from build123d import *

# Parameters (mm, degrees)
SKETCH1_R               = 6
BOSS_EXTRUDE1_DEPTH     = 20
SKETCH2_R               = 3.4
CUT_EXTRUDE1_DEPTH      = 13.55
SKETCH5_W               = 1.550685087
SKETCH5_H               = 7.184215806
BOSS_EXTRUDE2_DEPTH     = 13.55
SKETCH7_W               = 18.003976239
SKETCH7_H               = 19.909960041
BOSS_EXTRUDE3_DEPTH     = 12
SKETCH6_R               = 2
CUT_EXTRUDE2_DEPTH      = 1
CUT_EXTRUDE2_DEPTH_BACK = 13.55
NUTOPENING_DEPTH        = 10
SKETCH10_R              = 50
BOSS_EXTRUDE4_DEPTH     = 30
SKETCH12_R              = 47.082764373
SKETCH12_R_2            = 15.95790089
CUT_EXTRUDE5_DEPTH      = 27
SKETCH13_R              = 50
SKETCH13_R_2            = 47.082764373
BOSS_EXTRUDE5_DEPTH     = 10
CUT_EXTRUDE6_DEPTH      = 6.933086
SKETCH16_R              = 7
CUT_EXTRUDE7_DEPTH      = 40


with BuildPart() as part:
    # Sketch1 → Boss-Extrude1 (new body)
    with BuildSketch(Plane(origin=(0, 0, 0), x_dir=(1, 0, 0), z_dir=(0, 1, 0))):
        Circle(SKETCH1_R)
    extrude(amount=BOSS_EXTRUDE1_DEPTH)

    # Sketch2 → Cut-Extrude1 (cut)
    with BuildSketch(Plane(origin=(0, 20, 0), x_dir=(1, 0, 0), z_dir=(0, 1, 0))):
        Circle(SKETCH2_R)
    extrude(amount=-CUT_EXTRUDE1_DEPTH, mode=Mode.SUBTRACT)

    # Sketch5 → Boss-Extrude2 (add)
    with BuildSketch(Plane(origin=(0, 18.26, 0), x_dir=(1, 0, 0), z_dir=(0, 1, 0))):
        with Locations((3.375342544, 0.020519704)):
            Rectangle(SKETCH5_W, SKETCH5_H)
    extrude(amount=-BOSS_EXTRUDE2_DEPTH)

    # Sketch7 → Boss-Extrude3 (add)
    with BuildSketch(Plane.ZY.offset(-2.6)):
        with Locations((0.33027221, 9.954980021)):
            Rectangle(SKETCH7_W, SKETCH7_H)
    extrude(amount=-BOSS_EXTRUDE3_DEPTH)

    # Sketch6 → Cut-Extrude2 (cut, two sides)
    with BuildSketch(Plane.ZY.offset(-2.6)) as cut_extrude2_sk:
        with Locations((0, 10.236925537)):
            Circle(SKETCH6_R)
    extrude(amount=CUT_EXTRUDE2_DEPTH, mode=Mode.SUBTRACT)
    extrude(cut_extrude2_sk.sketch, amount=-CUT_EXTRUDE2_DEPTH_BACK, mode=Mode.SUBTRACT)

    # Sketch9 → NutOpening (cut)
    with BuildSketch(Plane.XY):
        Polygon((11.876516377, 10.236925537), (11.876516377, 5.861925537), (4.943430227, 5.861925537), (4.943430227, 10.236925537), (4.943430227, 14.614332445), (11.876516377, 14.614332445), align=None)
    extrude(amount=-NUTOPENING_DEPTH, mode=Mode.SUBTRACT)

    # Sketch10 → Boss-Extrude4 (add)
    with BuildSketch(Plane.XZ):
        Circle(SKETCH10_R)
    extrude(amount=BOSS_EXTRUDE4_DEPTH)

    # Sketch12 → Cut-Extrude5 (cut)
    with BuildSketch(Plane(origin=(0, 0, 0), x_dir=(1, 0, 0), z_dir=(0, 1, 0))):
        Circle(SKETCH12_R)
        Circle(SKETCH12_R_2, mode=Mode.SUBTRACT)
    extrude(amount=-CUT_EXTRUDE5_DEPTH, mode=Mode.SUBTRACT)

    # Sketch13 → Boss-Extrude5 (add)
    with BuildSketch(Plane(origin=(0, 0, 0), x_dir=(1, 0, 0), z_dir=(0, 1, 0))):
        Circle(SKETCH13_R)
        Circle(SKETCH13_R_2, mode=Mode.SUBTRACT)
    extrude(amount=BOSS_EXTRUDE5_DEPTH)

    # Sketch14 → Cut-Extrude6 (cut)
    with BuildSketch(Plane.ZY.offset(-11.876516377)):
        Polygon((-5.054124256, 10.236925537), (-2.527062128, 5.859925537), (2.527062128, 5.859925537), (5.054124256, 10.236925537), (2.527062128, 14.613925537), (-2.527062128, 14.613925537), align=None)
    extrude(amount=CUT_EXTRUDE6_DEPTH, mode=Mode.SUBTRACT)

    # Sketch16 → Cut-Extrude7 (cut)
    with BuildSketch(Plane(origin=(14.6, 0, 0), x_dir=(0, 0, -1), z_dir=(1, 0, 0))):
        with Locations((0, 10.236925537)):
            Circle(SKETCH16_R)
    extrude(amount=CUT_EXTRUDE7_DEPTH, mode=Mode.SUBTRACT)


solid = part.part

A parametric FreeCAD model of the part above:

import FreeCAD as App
import Part
import Sketcher

V = App.Vector
Q = App.Units.Quantity

doc = App.newDocument("Part")
body = doc.addObject("PartDesign::Body", "Body")

# Sketch on XZ plane
sketch1 = body.newObject("Sketcher::SketchObject", "Sketch")
sketch1.AttachmentSupport = (doc.getObject("XZ_Plane"), [""])
sketch1.MapMode = "FlatFace"
sketch1.addGeometry(Part.Circle(V(0, 0, 0), V(0, 0, 1), 6), False)
sketch1.addConstraint([
    Sketcher.Constraint("Coincident", 0, 3, -1, 1),
    Sketcher.Constraint("Diameter", 0, 12.0),
])
pad1 = body.newObject("PartDesign::Pad", "Pad")
pad1.Profile = sketch1
pad1.Length = 20
pad1.Reversed = True

# Sketch on XZ plane
sketch2 = body.newObject("Sketcher::SketchObject", "Sketch001")
sketch2.AttachmentSupport = (doc.getObject("XZ_Plane"), [""])
sketch2.MapMode = "FlatFace"
sketch2.AttachmentOffset = App.Placement(V(0, 0, -20), App.Rotation())
sketch2.addGeometry(Part.Circle(V(0, 0, 0), V(0, 0, 1), 3.4), False)
sketch2.addConstraint([
    Sketcher.Constraint("Coincident", 0, 3, -1, 1),
    Sketcher.Constraint("Diameter", 0, 6.8),
])
pocket1 = body.newObject("PartDesign::Pocket", "Pocket")
pocket1.Profile = sketch2
pocket1.Length = 13.55
pocket1.Reversed = True

# Sketch on XZ plane
sketch3 = body.newObject("Sketcher::SketchObject", "Sketch002")
sketch3.AttachmentSupport = (doc.getObject("XZ_Plane"), [""])
sketch3.MapMode = "FlatFace"
sketch3.AttachmentOffset = App.Placement(V(0, 0, -18.26), App.Rotation())
sketch3.addGeometry([
    Part.LineSegment(V(2.6, -3.6, 0), V(2.6, 3.6, 0)),
    Part.LineSegment(V(2.6, 3.6, 0), V(4.2, 3.6, 0)),
    Part.LineSegment(V(4.2, 3.6, 0), V(4.2, -3.6, 0)),
    Part.LineSegment(V(4.2, -3.6, 0), V(2.6, -3.6, 0)),
], False)
sketch3.addConstraint([
    Sketcher.Constraint("Coincident", 0, 2, 1, 1),
    Sketcher.Constraint("Coincident", 1, 2, 2, 1),
    Sketcher.Constraint("Coincident", 2, 2, 3, 1),
    Sketcher.Constraint("Coincident", 3, 2, 0, 1),
    Sketcher.Constraint("Vertical", 0),
    Sketcher.Constraint("Horizontal", 1),
    Sketcher.Constraint("Vertical", 2),
    Sketcher.Constraint("Horizontal", 3),
    Sketcher.Constraint("DistanceX", -1, 1, 0, 2, 2.6),
    Sketcher.Constraint("DistanceX", 1, 1, 1, 2, 1.550685),
    Sketcher.Constraint("DistanceY", 0, 1, 0, 2, 7.184216),
    Sketcher.Constraint("DistanceY", -1, 1, 0, 2, 3.571588),
])
pad2 = body.newObject("PartDesign::Pad", "Pad001")
pad2.Profile = sketch3
pad2.Length = 13.55

# Sketch on YZ plane
sketch4 = body.newObject("Sketcher::SketchObject", "Sketch003")
sketch4.AttachmentSupport = (doc.getObject("YZ_Plane"), [""])
sketch4.MapMode = "FlatFace"
sketch4.AttachmentOffset = App.Placement(V(0, 0, 2.6), App.Rotation())
sketch4.addGeometry([
    Part.LineSegment(V(20, -9, 0), V(0, -9, 0)),
    Part.LineSegment(V(0, -9, 0), V(0, 9, 0)),
    Part.LineSegment(V(0, 9, 0), V(20, 9, 0)),
    Part.LineSegment(V(20, 9, 0), V(20, -9, 0)),
], False)
sketch4.addConstraint([
    Sketcher.Constraint("Coincident", 0, 2, 1, 1),
    Sketcher.Constraint("Coincident", 1, 2, 2, 1),
    Sketcher.Constraint("Coincident", 2, 2, 3, 1),
    Sketcher.Constraint("Coincident", 3, 2, 0, 1),
    Sketcher.Constraint("Horizontal", 0),
    Sketcher.Constraint("Vertical", 1),
    Sketcher.Constraint("Horizontal", 2),
    Sketcher.Constraint("Vertical", 3),
    Sketcher.Constraint("PointOnObject", 0, 2, -2),
    Sketcher.Constraint("DistanceX", 0, 2, 0, 1, 19.90996),
    Sketcher.Constraint("DistanceY", 1, 1, 1, 2, 18.003976),
    Sketcher.Constraint("DistanceY", -1, 1, 1, 2, 9.33226),
])
pad3 = body.newObject("PartDesign::Pad", "Pad002")
pad3.Profile = sketch4
pad3.Length = 12

# Sketch on YZ plane
sketch5 = body.newObject("Sketcher::SketchObject", "Sketch004")
sketch5.AttachmentSupport = (doc.getObject("YZ_Plane"), [""])
sketch5.MapMode = "FlatFace"
sketch5.AttachmentOffset = App.Placement(V(0, 0, 2.6), App.Rotation())
sketch5.addGeometry(Part.Circle(V(10.2, 0, 0), V(0, 0, 1), 2), False)
sketch5.addConstraint([
    Sketcher.Constraint("PointOnObject", 0, 3, -1),
    Sketcher.Constraint("Diameter", 0, 4.0),
    Sketcher.Constraint("DistanceX", -1, 1, 0, 3, 10.236926),
])
pocket2 = body.newObject("PartDesign::Pocket", "Pocket001")
pocket2.Profile = sketch5
pocket2.Type = "TwoLengths"
pocket2.Length = 1
pocket2.Length2 = 13.55

# Sketch on XY plane
sketch6 = body.newObject("Sketcher::SketchObject", "Sketch005")
sketch6.AttachmentSupport = (doc.getObject("XY_Plane"), [""])
sketch6.MapMode = "FlatFace"
sketch6.addGeometry([
    Part.LineSegment(V(12, 6, 0), V(12, 15, 0)),
    Part.LineSegment(V(12, 15, 0), V(5, 15, 0)),
    Part.LineSegment(V(5, 15, 0), V(5, 6, 0)),
    Part.LineSegment(V(5, 6, 0), V(12, 6, 0)),
], False)
sketch6.addConstraint([
    Sketcher.Constraint("Coincident", 0, 2, 1, 1),
    Sketcher.Constraint("Coincident", 1, 2, 2, 1),
    Sketcher.Constraint("Coincident", 2, 2, 3, 1),
    Sketcher.Constraint("Coincident", 3, 2, 0, 1),
    Sketcher.Constraint("Vertical", 0),
    Sketcher.Constraint("Horizontal", 1),
    Sketcher.Constraint("Vertical", 2),
    Sketcher.Constraint("Horizontal", 3),
    Sketcher.Constraint("DistanceX", 1, 2, 1, 1, 6.933086),
    Sketcher.Constraint("DistanceY", 0, 1, 0, 2, 8.752407),
    Sketcher.Constraint("DistanceX", -1, 1, 1, 2, 4.94343),
    Sketcher.Constraint("DistanceY", -1, 1, 0, 2, 14.614332),
])
pocket3 = body.newObject("PartDesign::Pocket", "Pocket002")
pocket3.Profile = sketch6
pocket3.Length = 10

# Sketch on XZ plane
sketch7 = body.newObject("Sketcher::SketchObject", "Sketch006")
sketch7.AttachmentSupport = (doc.getObject("XZ_Plane"), [""])
sketch7.MapMode = "FlatFace"
sketch7.addGeometry(Part.Circle(V(0, 0, 0), V(0, 0, 1), 50), False)
sketch7.addConstraint([
    Sketcher.Constraint("Coincident", 0, 3, -1, 1),
    Sketcher.Constraint("Diameter", 0, 100.0),
])
pad4 = body.newObject("PartDesign::Pad", "Pad003")
pad4.Profile = sketch7
pad4.Length = 30

# Sketch on XZ plane
sketch8 = body.newObject("Sketcher::SketchObject", "Sketch007")
sketch8.AttachmentSupport = (doc.getObject("XZ_Plane"), [""])
sketch8.MapMode = "FlatFace"
sketch8.addGeometry([
    Part.Circle(V(0, 0, 0), V(0, 0, 1), 47),
    Part.Circle(V(0, 0, 0), V(0, 0, 1), 16),
], False)
sketch8.addConstraint([
    Sketcher.Constraint("Coincident", 0, 3, -1, 1),
    Sketcher.Constraint("Coincident", 1, 3, -1, 1),
    Sketcher.Constraint("Diameter", 1, 31.915802),
    Sketcher.Constraint("Diameter", 0, 94.165529),
])
pocket4 = body.newObject("PartDesign::Pocket", "Pocket003")
pocket4.Profile = sketch8
pocket4.Length = 27
pocket4.Reversed = True

# Sketch on XZ plane
sketch9 = body.newObject("Sketcher::SketchObject", "Sketch008")
sketch9.AttachmentSupport = (doc.getObject("XZ_Plane"), [""])
sketch9.MapMode = "FlatFace"
sketch9.addGeometry([
    Part.Circle(V(0, 0, 0), V(0, 0, 1), 50),
    Part.Circle(V(0, 0, 0), V(0, 0, 1), 47),
], False)
sketch9.addConstraint([
    Sketcher.Constraint("Coincident", 0, 3, -1, 1),
    Sketcher.Constraint("Coincident", 1, 3, -1, 1),
    Sketcher.Constraint("Diameter", 0, 100.0),
    Sketcher.Constraint("Diameter", 1, 94.165529),
])
pad5 = body.newObject("PartDesign::Pad", "Pad004")
pad5.Profile = sketch9
pad5.Length = 10
pad5.Reversed = True

# Sketch on YZ plane
sketch10 = body.newObject("Sketcher::SketchObject", "Sketch009")
sketch10.AttachmentSupport = (doc.getObject("YZ_Plane"), [""])
sketch10.MapMode = "FlatFace"
sketch10.AttachmentOffset = App.Placement(V(0, 0, 11.876516), App.Rotation())
sketch10.addGeometry([
    Part.LineSegment(V(10, -5, 0), V(6, -3, 0)),  # 0
    Part.LineSegment(V(6, -3, 0), V(6, 3, 0)),  # 1
    Part.LineSegment(V(6, 3, 0), V(10, 5, 0)),  # 2
    Part.LineSegment(V(10, 5, 0), V(15, 3, 0)),  # 3
    Part.LineSegment(V(15, 3, 0), V(15, -3, 0)),  # 4
    Part.LineSegment(V(15, -3, 0), V(10, -5, 0)),  # 5
], False)
sketch10.addConstraint([
    Sketcher.Constraint("Coincident", 0, 2, 1, 1),
    Sketcher.Constraint("Coincident", 1, 2, 2, 1),
    Sketcher.Constraint("Coincident", 2, 2, 3, 1),
    Sketcher.Constraint("Coincident", 3, 2, 4, 1),
    Sketcher.Constraint("Coincident", 4, 2, 5, 1),
    Sketcher.Constraint("Coincident", 5, 2, 0, 1),
    Sketcher.Constraint("Vertical", 1),
    Sketcher.Constraint("Vertical", 4),
    Sketcher.Constraint("Symmetric", 2, 2, 5, 2, -1),
    Sketcher.Constraint("Parallel", 0, 3),
    Sketcher.Constraint("Parallel", 2, 5),
    Sketcher.Constraint("Horizontal", 1, 2, 3, 2),
    Sketcher.Constraint("Horizontal", 0, 2, 4, 2),
    Sketcher.Constraint("Angle", 0, Q("150 deg")),
    Sketcher.Constraint("DistanceX", 1, 2, 2, 2, 4.377),
    Sketcher.Constraint("DistanceY", 1, 1, 1, 2, 5.054124),
    Sketcher.Constraint("DistanceX", -1, 1, 0, 2, 5.859926),
])
pocket5 = body.newObject("PartDesign::Pocket", "Pocket004")
pocket5.Profile = sketch10
pocket5.Length = 6.933086

# Sketch on YZ plane
sketch11 = body.newObject("Sketcher::SketchObject", "Sketch010")
sketch11.AttachmentSupport = (doc.getObject("YZ_Plane"), [""])
sketch11.MapMode = "FlatFace"
sketch11.AttachmentOffset = App.Placement(V(0, 0, 14.6), App.Rotation())
sketch11.addGeometry(Part.Circle(V(10, 0, 0), V(0, 0, 1), 7), False)
sketch11.addConstraint([
    Sketcher.Constraint("PointOnObject", 0, 3, -1),
    Sketcher.Constraint("Diameter", 0, 14.0),
    Sketcher.Constraint("DistanceX", -1, 1, 0, 3, 10.236926),
])
pocket6 = body.newObject("PartDesign::Pocket", "Pocket005")
pocket6.Profile = sketch11
pocket6.Length = 40
pocket6.Reversed = True

doc.recompute()
